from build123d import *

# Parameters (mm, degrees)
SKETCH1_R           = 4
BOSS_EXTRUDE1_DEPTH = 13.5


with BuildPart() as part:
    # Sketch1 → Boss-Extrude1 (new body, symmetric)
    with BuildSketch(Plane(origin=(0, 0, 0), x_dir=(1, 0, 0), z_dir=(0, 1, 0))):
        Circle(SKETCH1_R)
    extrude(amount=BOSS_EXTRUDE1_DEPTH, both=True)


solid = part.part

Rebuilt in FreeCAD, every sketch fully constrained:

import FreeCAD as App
import Part
import Sketcher
from FreeCAD import Vector
Q = App.Units.Quantity

doc = App.newDocument("Part")
body = doc.addObject("PartDesign::Body", "Body")

# Sketch on XZ plane
sketch1 = body.newObject("Sketcher::SketchObject", "Sketch")
sketch1.AttachmentSupport = (doc.getObject("XZ_Plane"), [""])
sketch1.MapMode = "FlatFace"
sketch1.addGeometry(Part.Circle(Vector(0, 0, 0), Vector(0, 0, 1), 4), False)
sketch1.addConstraint([
    Sketcher.Constraint("Coincident", 0, 3, -1, 1),
    Sketcher.Constraint("Diameter", 0, Q("8 mm")),
])
pad1 = body.newObject("PartDesign::Pad", "Pad")
pad1.Profile = sketch1
pad1.Length = 27
pad1.Midplane = True

doc.recompute()
